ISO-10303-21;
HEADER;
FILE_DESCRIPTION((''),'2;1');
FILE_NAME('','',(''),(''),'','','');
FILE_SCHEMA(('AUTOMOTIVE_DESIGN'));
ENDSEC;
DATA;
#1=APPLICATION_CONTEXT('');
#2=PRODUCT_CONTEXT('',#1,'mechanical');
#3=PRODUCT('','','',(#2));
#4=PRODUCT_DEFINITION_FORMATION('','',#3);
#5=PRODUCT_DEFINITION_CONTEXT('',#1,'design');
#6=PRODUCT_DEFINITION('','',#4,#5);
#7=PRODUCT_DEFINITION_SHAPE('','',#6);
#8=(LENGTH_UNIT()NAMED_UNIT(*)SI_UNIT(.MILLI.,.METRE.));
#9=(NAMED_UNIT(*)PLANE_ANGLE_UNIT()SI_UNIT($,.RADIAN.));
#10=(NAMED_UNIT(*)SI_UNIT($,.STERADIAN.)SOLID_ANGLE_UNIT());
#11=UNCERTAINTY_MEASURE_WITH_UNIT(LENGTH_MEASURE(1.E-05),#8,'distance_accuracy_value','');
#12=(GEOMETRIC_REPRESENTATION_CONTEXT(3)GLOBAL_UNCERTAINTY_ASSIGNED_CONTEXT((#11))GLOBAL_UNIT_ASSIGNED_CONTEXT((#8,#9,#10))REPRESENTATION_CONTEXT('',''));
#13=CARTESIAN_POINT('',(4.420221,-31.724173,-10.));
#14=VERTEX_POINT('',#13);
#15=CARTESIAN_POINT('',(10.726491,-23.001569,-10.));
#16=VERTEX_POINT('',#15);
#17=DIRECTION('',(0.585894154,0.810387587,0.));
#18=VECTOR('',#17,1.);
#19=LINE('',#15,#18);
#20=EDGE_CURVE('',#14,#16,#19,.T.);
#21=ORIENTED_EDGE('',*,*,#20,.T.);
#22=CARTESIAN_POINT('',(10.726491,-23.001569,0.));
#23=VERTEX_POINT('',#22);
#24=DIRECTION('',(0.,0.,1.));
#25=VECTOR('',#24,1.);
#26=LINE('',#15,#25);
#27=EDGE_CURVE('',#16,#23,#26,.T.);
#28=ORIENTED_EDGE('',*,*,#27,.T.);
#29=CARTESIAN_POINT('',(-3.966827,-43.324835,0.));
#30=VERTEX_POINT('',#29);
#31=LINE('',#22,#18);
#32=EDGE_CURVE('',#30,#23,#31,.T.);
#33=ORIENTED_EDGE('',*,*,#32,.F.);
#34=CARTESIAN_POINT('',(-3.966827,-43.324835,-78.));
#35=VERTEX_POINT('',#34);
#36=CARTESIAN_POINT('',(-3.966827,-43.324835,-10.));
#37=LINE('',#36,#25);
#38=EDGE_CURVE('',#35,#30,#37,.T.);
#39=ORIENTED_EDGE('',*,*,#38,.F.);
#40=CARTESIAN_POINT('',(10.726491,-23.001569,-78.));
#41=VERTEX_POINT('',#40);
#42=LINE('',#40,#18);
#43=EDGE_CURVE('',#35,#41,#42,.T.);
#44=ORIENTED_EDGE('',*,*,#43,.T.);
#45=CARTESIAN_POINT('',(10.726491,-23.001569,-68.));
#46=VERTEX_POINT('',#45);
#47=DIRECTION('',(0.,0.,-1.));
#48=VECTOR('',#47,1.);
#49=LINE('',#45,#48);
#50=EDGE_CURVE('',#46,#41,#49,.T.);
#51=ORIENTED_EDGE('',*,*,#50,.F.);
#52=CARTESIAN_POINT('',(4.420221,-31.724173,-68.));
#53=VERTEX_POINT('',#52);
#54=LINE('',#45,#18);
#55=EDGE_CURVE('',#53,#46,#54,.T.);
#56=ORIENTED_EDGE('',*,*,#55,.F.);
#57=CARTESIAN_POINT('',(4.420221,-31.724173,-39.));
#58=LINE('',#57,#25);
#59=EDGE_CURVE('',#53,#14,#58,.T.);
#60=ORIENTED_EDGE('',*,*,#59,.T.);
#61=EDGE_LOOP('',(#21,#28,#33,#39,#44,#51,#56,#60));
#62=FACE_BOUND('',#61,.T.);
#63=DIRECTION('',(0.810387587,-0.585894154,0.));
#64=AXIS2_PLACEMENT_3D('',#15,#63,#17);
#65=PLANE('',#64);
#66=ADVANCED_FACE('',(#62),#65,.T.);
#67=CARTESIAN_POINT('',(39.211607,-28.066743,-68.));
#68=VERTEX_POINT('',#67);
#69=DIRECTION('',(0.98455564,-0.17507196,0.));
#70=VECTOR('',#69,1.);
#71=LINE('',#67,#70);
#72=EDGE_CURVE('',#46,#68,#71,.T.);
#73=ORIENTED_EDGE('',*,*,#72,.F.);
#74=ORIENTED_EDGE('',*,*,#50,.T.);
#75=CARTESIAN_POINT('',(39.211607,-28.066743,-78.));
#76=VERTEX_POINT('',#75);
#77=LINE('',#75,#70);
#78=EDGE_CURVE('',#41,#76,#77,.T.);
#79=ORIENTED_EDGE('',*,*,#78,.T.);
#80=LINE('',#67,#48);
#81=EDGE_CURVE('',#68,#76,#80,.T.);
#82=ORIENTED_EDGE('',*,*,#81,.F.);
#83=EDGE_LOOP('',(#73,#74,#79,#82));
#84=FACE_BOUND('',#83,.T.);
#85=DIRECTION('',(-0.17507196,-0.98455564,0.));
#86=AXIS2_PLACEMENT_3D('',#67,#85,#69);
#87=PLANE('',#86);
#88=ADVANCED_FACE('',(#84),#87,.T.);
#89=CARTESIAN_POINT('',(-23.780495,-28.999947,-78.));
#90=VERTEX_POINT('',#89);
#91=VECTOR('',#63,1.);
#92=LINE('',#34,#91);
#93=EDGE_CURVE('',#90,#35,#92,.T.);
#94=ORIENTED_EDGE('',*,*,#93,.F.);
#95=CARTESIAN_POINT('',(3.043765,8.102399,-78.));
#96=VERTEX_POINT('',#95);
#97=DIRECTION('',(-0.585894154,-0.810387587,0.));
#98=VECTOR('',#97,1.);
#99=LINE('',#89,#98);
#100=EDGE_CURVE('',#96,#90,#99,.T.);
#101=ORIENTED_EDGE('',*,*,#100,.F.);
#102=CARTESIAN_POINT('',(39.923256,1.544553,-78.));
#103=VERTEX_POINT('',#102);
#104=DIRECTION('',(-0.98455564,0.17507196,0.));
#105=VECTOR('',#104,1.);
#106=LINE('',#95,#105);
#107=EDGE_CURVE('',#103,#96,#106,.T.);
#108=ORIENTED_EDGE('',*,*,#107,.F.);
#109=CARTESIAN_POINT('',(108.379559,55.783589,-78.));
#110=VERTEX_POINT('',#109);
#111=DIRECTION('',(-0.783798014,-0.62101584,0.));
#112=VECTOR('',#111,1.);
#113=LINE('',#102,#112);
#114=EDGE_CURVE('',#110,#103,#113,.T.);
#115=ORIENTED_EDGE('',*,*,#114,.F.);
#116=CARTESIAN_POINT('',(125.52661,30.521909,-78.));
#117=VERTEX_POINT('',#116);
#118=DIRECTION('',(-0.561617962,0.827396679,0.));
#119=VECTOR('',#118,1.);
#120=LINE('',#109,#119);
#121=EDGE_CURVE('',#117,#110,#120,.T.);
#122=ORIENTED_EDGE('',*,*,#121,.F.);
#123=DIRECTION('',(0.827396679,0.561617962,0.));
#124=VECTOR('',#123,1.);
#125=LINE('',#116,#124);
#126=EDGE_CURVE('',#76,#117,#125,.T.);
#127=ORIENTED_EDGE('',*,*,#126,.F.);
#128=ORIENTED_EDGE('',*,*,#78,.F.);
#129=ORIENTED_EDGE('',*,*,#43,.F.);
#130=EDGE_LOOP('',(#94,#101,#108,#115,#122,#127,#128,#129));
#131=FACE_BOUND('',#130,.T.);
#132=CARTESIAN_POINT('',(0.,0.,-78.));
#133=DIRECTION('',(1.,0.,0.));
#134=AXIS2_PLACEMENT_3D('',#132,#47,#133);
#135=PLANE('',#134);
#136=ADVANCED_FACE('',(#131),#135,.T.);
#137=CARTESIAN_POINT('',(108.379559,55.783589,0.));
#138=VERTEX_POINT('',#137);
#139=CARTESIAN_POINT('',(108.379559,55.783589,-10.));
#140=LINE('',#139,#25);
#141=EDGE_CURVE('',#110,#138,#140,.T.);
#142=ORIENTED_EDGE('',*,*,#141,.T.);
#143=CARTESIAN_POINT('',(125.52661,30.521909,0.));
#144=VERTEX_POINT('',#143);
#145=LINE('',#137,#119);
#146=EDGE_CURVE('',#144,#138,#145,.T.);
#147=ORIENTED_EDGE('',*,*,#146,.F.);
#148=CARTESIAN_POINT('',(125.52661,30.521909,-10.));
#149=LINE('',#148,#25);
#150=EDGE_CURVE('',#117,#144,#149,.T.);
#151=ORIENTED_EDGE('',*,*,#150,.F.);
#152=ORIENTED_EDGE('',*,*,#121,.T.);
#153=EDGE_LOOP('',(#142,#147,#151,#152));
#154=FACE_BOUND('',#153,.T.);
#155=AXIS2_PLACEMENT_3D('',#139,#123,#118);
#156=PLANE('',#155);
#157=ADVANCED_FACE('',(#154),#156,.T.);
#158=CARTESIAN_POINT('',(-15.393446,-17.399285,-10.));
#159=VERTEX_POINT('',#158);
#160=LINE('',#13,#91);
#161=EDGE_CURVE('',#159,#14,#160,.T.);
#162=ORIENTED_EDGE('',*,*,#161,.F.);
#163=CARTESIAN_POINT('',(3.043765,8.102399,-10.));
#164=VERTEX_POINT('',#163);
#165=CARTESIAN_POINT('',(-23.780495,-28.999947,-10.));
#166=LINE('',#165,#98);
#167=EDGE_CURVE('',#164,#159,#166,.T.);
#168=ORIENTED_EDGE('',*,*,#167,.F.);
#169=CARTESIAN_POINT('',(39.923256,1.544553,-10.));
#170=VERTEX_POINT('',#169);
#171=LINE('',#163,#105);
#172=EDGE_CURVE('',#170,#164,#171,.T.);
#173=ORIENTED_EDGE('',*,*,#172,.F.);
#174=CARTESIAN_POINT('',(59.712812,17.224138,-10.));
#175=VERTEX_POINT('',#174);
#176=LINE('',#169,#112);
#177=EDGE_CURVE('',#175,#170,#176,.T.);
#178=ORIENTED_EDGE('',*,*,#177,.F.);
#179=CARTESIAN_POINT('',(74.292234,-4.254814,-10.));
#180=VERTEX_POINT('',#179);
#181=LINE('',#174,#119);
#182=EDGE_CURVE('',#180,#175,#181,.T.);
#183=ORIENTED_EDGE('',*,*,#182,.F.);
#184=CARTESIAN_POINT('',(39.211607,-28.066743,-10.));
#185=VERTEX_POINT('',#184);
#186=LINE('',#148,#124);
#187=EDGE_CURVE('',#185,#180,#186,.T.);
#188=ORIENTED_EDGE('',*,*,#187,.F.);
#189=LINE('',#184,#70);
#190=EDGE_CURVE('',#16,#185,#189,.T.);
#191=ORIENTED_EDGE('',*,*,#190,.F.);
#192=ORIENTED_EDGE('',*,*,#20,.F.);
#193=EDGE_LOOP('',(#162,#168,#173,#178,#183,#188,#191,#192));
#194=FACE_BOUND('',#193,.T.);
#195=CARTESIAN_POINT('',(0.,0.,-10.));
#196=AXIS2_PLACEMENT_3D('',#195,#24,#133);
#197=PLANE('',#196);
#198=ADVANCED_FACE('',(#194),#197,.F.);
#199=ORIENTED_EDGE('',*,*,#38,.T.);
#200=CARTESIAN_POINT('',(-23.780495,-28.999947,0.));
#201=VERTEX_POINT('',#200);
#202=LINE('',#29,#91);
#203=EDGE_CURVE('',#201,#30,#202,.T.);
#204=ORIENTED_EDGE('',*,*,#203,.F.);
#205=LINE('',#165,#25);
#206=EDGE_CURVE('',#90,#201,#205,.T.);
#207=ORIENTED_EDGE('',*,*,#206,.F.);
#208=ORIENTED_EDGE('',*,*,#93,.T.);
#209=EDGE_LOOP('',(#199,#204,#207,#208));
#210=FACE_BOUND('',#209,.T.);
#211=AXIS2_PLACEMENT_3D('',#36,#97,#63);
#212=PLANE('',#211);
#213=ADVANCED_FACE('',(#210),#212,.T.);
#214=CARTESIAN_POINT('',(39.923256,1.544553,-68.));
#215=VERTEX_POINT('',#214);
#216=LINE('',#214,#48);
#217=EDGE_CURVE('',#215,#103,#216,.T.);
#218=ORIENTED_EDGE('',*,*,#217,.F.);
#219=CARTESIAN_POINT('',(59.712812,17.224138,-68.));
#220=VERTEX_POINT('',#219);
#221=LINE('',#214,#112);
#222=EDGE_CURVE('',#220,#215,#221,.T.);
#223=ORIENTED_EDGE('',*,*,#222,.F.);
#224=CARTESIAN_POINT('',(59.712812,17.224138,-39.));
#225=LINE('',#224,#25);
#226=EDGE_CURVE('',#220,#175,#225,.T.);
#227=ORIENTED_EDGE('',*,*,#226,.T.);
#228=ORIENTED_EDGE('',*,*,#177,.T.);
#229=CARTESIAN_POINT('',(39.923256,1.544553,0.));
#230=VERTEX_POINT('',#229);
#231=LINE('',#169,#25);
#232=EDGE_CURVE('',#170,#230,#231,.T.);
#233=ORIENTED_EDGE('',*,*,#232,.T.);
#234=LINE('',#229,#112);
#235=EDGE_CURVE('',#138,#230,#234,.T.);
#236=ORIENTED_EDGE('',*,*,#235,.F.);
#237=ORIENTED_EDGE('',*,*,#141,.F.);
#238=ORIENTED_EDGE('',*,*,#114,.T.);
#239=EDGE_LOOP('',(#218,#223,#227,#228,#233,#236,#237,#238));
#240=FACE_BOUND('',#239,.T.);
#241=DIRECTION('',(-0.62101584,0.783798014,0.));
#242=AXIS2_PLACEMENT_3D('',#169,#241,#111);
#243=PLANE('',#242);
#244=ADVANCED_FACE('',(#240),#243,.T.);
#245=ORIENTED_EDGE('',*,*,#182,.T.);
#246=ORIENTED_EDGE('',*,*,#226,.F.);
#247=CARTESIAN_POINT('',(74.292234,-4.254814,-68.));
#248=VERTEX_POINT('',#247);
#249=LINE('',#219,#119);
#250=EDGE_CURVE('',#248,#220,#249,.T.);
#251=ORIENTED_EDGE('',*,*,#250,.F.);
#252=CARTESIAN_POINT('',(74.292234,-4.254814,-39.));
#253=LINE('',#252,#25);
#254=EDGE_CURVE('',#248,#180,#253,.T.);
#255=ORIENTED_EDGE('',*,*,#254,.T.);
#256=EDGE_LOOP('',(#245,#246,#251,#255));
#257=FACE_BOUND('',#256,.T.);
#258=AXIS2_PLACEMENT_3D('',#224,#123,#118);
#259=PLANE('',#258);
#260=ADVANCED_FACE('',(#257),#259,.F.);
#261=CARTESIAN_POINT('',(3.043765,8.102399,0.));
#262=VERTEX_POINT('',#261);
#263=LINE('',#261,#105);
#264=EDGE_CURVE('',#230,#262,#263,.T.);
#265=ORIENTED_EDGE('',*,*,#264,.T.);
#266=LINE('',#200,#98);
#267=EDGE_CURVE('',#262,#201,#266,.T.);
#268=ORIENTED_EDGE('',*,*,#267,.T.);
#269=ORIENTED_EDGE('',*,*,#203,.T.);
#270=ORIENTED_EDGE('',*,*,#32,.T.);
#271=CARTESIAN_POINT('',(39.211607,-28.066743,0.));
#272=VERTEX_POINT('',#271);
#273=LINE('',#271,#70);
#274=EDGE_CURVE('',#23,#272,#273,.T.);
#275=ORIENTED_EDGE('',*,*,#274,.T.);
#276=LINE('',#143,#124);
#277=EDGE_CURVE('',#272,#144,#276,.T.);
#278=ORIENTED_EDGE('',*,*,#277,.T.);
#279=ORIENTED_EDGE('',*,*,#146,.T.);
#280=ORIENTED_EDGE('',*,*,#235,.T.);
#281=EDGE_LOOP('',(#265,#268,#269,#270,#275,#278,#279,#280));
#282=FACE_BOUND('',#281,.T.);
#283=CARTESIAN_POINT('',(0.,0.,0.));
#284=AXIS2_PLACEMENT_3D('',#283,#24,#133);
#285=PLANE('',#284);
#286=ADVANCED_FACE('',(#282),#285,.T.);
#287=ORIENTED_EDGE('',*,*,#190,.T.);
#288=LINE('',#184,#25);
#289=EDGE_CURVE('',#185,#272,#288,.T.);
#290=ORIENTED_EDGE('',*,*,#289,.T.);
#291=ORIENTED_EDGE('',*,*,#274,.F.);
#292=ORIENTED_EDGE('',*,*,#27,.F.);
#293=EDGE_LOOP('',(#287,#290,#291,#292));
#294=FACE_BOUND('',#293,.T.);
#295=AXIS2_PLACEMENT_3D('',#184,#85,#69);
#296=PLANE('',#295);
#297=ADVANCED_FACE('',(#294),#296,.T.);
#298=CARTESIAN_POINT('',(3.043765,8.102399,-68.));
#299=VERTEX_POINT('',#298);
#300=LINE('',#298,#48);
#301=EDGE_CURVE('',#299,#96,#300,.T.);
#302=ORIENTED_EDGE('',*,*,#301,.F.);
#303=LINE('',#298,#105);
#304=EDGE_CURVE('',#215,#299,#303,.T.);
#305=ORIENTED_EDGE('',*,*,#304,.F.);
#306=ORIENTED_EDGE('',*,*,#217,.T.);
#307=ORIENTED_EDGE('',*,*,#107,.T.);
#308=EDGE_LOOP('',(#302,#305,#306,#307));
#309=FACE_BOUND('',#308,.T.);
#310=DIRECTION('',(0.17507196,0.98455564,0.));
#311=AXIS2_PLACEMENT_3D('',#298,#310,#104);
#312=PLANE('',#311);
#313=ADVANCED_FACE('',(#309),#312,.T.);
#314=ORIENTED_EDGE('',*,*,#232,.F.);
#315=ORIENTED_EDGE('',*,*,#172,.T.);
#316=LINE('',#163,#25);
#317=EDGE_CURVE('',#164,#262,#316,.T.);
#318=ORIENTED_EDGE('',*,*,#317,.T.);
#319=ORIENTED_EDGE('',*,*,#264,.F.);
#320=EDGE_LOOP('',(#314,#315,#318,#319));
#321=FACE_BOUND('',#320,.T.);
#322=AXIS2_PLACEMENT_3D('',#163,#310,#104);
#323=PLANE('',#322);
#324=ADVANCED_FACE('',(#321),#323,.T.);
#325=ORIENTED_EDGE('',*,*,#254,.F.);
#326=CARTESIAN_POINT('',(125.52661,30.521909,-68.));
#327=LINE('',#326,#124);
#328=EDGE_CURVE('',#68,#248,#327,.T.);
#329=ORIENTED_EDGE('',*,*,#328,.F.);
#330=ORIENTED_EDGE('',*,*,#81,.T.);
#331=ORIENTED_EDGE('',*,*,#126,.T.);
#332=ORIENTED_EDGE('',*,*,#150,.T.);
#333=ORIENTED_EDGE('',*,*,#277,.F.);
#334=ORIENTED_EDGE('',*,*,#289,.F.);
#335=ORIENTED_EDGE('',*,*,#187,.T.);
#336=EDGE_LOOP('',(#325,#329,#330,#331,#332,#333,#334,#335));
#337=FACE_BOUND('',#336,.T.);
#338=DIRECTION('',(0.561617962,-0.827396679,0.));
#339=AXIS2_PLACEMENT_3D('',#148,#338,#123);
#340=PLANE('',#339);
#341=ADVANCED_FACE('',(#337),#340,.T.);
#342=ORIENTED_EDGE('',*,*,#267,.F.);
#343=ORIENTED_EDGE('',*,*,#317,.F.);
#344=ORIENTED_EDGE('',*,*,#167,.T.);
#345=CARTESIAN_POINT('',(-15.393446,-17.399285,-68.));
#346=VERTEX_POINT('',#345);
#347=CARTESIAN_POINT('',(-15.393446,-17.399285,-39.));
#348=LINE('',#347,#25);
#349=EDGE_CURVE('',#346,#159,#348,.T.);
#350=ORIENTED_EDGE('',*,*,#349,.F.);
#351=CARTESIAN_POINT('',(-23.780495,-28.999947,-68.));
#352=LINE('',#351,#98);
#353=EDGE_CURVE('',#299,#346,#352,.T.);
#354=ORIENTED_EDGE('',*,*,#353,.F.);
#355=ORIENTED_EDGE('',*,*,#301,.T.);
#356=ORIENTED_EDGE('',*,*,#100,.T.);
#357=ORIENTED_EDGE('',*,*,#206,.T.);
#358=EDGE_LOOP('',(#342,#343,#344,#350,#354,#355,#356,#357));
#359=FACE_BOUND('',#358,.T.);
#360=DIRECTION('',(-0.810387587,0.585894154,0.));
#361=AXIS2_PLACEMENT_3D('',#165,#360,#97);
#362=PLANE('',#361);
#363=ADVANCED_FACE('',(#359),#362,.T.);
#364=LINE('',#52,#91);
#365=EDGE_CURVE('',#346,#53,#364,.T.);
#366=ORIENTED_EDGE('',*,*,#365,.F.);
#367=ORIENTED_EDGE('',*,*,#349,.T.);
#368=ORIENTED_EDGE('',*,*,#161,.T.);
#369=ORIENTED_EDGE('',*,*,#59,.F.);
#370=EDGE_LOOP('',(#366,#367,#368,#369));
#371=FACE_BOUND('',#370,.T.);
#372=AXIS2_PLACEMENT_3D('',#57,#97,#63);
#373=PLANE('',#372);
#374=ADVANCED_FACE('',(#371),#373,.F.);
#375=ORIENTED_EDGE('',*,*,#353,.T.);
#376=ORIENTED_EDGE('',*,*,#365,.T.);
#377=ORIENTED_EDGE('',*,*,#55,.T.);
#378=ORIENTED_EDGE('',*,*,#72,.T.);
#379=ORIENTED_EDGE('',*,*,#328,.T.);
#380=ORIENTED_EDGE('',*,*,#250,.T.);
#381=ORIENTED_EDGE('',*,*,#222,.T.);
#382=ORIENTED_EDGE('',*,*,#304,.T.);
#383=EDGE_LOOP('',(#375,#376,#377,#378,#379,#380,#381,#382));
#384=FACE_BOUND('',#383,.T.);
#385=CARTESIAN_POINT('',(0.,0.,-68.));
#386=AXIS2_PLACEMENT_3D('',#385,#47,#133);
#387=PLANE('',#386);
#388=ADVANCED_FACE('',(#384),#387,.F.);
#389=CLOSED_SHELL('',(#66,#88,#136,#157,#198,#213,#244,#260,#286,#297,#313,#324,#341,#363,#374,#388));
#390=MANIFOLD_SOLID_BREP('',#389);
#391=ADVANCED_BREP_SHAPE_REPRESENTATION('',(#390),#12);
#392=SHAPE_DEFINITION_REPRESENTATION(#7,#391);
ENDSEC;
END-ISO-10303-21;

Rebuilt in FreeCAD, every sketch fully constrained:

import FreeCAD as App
import Part
import Sketcher

V = App.Vector


def add_polygon(sketch, points):
    """Adds a closed chain of lines whose ends are joined by coincident constraints."""
    first, n = sketch.GeometryCount, len(points)
    for a, b in zip(points, points[1:] + points[:1]):
        sketch.addGeometry(Part.LineSegment(App.Vector(*a, 0), App.Vector(*b, 0)), False)
    for i in range(n):
        sketch.addConstraint(Sketcher.Constraint("Coincident", first + i, 2, first + (i + 1) % n, 1))

doc = App.newDocument("Part")
body = doc.addObject("PartDesign::Body", "Body")

sketch1 = body.newObject("Sketcher::SketchObject", "Sketch")
sketch1.AttachmentSupport = (doc.getObject("XY_Plane"), [""])
sketch1.MapMode = "FlatFace"
add_polygon(sketch1, [(39.923256, 1.544553), (3.043765, 8.102399), (-23.780495, -28.999947), (-3.966827, -43.324835), (10.726491, -23.001569), (39.211607, -28.066743), (125.52661, 30.521909), (108.379559, 55.783589)])
sketch1.addConstraint(Sketcher.Constraint("DistanceY", -1, 1, 0, 2, 8.102399))
sketch1.addConstraint(Sketcher.Constraint("DistanceX", 1, 2, 4, 2, 62.992102))
sketch1.addConstraint(Sketcher.Constraint("DistanceY", 1, 2, 7, 2, 30.544499))
sketch1.addConstraint(Sketcher.Constraint("Distance", 2, 24.449619))
sketch1.addConstraint(Sketcher.Constraint("Distance", 3, 25.078452))
sketch1.addConstraint(Sketcher.Constraint("Distance", 4, 28.931951))
sketch1.addConstraint(Sketcher.Constraint("Distance", 6, 30.531521))
sketch1.addConstraint(Sketcher.Constraint("DistanceX", -1, 1, 3, 2, 10.726491))
sketch1.addConstraint(Sketcher.Constraint("DistanceY", 3, 2, -1, 1, 23.001569))
sketch1.addConstraint(Sketcher.Constraint("DistanceX", -1, 1, 5, 2, 125.52661))
sketch1.addConstraint(Sketcher.Constraint("DistanceY", -1, 1, 5, 2, 30.521909))
sketch1.addConstraint(Sketcher.Constraint("DistanceX", -1, 1, 6, 2, 108.379559))
sketch1.addConstraint(Sketcher.Constraint("DistanceX", 1, 2, 0, 2, 26.82426))
sketch1.addConstraint(Sketcher.Constraint("DistanceY", 2, 2, 1, 2, 14.324889))
sketch1.addConstraint(Sketcher.Constraint("DistanceX", 2, 2, 3, 2, 14.693318))
sketch1.addConstraint(Sketcher.Constraint("DistanceX", 4, 2, 7, 2, 0.711649))
pad1 = body.newObject("PartDesign::Pad", "Pad")
pad1.Profile = sketch1
pad1.Length = 10
pad1.Reversed = True

sketch2 = body.newObject("Sketcher::SketchObject", "Sketch001")
sketch2.AttachmentSupport = (doc.getObject("XY_Plane"), [""])
sketch2.MapMode = "FlatFace"
sketch2.AttachmentOffset = App.Placement(V(0, 0, -10), App.Rotation())
add_polygon(sketch2, [(74, -4), (60, 17), (108, 56), (126, 31)])
add_polygon(sketch2, [(-4, -43), (-24, -29), (-15, -17), (4, -32)])
sketch2.addConstraint(Sketcher.Constraint("Parallel", 0, 2))
sketch2.addConstraint(Sketcher.Constraint("Perpendicular", 2, 3))
sketch2.addConstraint(Sketcher.Constraint("Perpendicular", 4, 5))
sketch2.addConstraint(Sketcher.Constraint("Perpendicular", 5, 6))
sketch2.addConstraint(Sketcher.Constraint("Perpendicular", 6, 7))
sketch2.addConstraint(Sketcher.Constraint("Distance", 0, 25.959679))
sketch2.addConstraint(Sketcher.Constraint("Distance", 1, 62.090929))
sketch2.addConstraint(Sketcher.Constraint("Distance", 2, 30.531521))
sketch2.addConstraint(Sketcher.Constraint("Distance", 4, 24.449619))
sketch2.addConstraint(Sketcher.Constraint("DistanceY", -1, 1, 0, 2, 17.224138))
sketch2.addConstraint(Sketcher.Constraint("DistanceX", -1, 1, 1, 2, 108.379559))
sketch2.addConstraint(Sketcher.Constraint("DistanceY", -1, 1, 1, 2, 55.783589))
sketch2.addConstraint(Sketcher.Constraint("DistanceX", -1, 1, 6, 2, 4.420221))
sketch2.addConstraint(Sketcher.Constraint("DistanceX", 4, 2, 3, 2, 98.072729))
sketch2.addConstraint(Sketcher.Constraint("DistanceX", 4, 2, 5, 2, 8.387049))
sketch2.addConstraint(Sketcher.Constraint("DistanceY", 5, 2, 3, 2, 13.144471))
pad2 = body.newObject("PartDesign::Pad", "Pad001")
pad2.Profile = sketch2
pad2.Length = 29
pad2.Reversed = True
doc.recompute()

datumplane = body.newObject("PartDesign::Plane", "DatumPlane")
datumplane.AttachmentSupport = (doc.getObject("XY_Plane"), [""])
datumplane.MapMode = "FlatFace"
datumplane.AttachmentOffset = App.Placement(V(0, 0, -39), App.Rotation())
mirrored = body.newObject("PartDesign::Mirrored", "Mirrored")
mirrored.Originals = [pad1, pad2]
mirrored.MirrorPlane = (datumplane, [""])
body.Tip = mirrored

doc.recompute()
